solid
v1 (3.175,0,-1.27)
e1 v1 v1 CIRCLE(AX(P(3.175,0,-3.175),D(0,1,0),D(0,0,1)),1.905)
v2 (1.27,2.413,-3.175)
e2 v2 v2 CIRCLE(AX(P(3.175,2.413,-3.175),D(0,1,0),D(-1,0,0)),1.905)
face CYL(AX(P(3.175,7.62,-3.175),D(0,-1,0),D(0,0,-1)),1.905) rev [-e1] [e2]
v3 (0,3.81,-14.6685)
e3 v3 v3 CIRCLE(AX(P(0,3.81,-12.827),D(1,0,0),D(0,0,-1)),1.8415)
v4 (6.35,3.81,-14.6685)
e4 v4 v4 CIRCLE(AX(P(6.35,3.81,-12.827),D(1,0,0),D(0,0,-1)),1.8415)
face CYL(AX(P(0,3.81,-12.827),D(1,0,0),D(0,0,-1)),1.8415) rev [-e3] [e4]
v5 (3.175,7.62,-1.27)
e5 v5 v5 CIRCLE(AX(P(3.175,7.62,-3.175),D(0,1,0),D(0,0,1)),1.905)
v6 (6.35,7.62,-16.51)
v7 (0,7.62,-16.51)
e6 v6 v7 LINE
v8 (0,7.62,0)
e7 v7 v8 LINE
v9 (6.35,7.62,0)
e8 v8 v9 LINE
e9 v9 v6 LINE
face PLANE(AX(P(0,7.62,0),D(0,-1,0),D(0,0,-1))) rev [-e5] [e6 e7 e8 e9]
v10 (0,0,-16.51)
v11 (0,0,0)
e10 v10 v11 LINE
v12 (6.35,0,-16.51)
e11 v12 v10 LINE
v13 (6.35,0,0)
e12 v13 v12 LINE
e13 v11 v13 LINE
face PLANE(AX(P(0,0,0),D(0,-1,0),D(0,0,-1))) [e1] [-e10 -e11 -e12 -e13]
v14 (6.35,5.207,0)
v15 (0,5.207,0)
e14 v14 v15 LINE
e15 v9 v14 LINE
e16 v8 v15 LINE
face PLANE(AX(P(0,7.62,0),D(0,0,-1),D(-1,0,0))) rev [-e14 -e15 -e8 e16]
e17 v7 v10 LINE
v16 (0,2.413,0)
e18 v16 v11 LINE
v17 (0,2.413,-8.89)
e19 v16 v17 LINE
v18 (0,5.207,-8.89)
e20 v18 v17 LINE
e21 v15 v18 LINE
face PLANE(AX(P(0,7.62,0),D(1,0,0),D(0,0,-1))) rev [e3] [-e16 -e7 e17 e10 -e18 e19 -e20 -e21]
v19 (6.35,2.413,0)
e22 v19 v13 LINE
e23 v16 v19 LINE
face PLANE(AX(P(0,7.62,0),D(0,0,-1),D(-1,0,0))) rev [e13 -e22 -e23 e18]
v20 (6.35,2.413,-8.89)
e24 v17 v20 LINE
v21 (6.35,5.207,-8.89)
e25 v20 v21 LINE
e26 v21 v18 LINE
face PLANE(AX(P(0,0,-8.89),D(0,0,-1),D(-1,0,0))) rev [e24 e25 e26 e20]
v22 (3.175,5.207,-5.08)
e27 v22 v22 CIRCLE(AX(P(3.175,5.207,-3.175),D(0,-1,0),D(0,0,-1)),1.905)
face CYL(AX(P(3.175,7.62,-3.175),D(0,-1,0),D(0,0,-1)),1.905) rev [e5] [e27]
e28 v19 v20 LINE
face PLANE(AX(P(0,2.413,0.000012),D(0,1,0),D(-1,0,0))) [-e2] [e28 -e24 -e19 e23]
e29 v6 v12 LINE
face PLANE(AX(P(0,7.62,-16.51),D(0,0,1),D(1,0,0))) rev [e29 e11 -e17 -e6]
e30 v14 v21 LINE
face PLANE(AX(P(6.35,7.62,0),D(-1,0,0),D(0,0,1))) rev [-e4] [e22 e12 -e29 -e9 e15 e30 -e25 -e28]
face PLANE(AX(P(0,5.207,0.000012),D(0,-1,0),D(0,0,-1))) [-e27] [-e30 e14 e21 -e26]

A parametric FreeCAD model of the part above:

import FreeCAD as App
import Part
import Sketcher
from FreeCAD import Vector
Q = App.Units.Quantity

doc = App.newDocument("Part")
body = doc.addObject("PartDesign::Body", "Body")

# Sketch on XZ plane
sketch1 = body.newObject("Sketcher::SketchObject", "Sketch")
sketch1.AttachmentSupport = (doc.getObject("XZ_Plane"), [""])
sketch1.MapMode = "FlatFace"
sketch1.addGeometry([
    Part.LineSegment(Vector(0, -16.5, 0), Vector(0, 0, 0)),  # 0
    Part.LineSegment(Vector(0, 0, 0), Vector(6.3, 0, 0)),  # 1
    Part.LineSegment(Vector(6.3, 0, 0), Vector(6.3, -16.5, 0)),  # 2
    Part.LineSegment(Vector(6.3, -16.5, 0), Vector(0, -16.5, 0)),  # 3
    Part.Circle(Vector(3.2, -3.2, 0), Vector(0, 0, 1), 1.9),  # 4
], False)
sketch1.addConstraint([
    Sketcher.Constraint("Coincident", 0, 2, 1, 1),
    Sketcher.Constraint("Coincident", 1, 2, 2, 1),
    Sketcher.Constraint("Coincident", 2, 2, 3, 1),
    Sketcher.Constraint("Coincident", 3, 2, 0, 1),
    Sketcher.Constraint("Vertical", 0),
    Sketcher.Constraint("Horizontal", 1),
    Sketcher.Constraint("Vertical", 2),
    Sketcher.Constraint("Horizontal", 3),
    Sketcher.Constraint("Coincident", 0, 2, -1, 1),
    Sketcher.Constraint("Diameter", 4, Q("0.15 in")),
    Sketcher.Constraint("DistanceX", 1, 1, 1, 2, Q("0.25 in")),
    Sketcher.Constraint("DistanceY", 0, 1, 0, 2, Q("0.65 in")),
    Sketcher.Constraint("DistanceX", -1, 1, 4, 3, Q("0.125 in")),
    Sketcher.Constraint("DistanceY", 4, 3, -1, 1, Q("0.125 in")),
])
pad1 = body.newObject("PartDesign::Pad", "Pad")
pad1.Profile = sketch1
pad1.Length = Q("0.3 in")
pad1.Reversed = True

# Sketch on XY plane
sketch2 = body.newObject("Sketcher::SketchObject", "Sketch001")
sketch2.AttachmentSupport = (doc.getObject("XY_Plane"), [""])
sketch2.MapMode = "FlatFace"
sketch2.addGeometry([
    Part.LineSegment(Vector(0, 5.2, 0), Vector(0, 2.4, 0)),
    Part.LineSegment(Vector(0, 2.4, 0), Vector(6.3, 2.4, 0)),
    Part.LineSegment(Vector(6.3, 2.4, 0), Vector(6.3, 5.2, 0)),
    Part.LineSegment(Vector(6.3, 5.2, 0), Vector(0, 5.2, 0)),
], False)
sketch2.addConstraint([
    Sketcher.Constraint("Coincident", 0, 2, 1, 1),
    Sketcher.Constraint("Coincident", 1, 2, 2, 1),
    Sketcher.Constraint("Coincident", 2, 2, 3, 1),
    Sketcher.Constraint("Coincident", 3, 2, 0, 1),
    Sketcher.Constraint("Vertical", 0),
    Sketcher.Constraint("Horizontal", 1),
    Sketcher.Constraint("Vertical", 2),
    Sketcher.Constraint("Horizontal", 3),
    Sketcher.Constraint("PointOnObject", 0, 2, -2),
    Sketcher.Constraint("DistanceX", 1, 1, 1, 2, Q("0.25 in")),
    Sketcher.Constraint("DistanceY", 0, 2, 0, 1, Q("0.11 in")),
    Sketcher.Constraint("DistanceY", -1, 1, 0, 2, Q("0.095 in")),
])
pocket1 = body.newObject("PartDesign::Pocket", "Pocket")
pocket1.Profile = sketch2
pocket1.Type = "TwoLengths"
pocket1.Length = 1
pocket1.Length2 = Q("0.35 in")
pocket1.Reversed = True

# Sketch on YZ plane
sketch3 = body.newObject("Sketcher::SketchObject", "Sketch002")
sketch3.AttachmentSupport = (doc.getObject("YZ_Plane"), [""])
sketch3.MapMode = "FlatFace"
sketch3.AttachmentOffset = App.Placement(Vector(0, 0, 0.25 * 25.4), App.Rotation())
sketch3.addGeometry(Part.Circle(Vector(3.8, -12.8, 0), Vector(0, 0, 1), 1.8), False)
sketch3.addConstraint([
    Sketcher.Constraint("Diameter", 0, Q("0.145 in")),
    Sketcher.Constraint("DistanceX", -1, 1, 0, 3, Q("0.15 in")),
    Sketcher.Constraint("DistanceY", 0, 3, -1, 1, Q("0.505 in")),
])
pocket2 = body.newObject("PartDesign::Pocket", "Pocket001")
pocket2.Profile = sketch3
pocket2.Type = "ThroughAll"

doc.recompute()
